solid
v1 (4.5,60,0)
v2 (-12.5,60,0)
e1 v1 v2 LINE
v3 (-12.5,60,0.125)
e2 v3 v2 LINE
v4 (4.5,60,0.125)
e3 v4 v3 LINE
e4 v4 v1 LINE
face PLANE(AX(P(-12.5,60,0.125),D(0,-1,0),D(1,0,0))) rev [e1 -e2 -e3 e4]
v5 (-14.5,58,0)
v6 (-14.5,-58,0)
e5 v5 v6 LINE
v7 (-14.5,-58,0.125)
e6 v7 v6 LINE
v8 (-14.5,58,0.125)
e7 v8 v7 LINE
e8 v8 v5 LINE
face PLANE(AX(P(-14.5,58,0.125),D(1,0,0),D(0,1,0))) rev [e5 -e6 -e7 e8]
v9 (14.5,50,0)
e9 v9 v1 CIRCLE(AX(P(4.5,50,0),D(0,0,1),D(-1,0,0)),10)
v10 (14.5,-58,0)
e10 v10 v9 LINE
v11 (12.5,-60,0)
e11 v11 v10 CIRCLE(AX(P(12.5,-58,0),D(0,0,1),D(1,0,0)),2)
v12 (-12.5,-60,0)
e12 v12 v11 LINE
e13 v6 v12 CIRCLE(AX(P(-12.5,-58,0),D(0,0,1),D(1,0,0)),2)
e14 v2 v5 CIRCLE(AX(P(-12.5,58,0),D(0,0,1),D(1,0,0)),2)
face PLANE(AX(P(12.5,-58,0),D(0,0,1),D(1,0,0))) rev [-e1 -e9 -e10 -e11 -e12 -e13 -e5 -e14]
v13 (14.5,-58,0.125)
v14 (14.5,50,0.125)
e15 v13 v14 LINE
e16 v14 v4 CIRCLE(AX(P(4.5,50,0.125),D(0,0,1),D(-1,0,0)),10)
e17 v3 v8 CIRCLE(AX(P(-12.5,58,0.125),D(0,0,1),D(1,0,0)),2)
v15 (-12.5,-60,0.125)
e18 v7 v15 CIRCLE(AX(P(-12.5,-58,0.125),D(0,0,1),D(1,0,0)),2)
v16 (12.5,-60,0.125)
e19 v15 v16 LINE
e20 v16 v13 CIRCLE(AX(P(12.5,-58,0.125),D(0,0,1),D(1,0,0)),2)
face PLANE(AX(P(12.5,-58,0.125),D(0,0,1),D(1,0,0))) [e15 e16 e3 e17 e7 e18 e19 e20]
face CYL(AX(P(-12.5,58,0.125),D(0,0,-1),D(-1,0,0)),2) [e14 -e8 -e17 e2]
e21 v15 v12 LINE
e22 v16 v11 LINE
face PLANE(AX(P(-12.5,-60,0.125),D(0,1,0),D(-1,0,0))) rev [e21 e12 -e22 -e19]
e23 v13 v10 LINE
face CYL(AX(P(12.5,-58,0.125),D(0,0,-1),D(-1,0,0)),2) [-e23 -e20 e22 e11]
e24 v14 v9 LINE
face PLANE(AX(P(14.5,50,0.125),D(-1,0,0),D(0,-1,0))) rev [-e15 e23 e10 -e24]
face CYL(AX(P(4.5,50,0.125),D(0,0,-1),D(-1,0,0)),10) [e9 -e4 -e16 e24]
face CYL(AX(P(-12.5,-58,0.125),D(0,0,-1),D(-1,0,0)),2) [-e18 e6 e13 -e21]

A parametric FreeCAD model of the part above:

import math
import FreeCAD as App
import Part
import Sketcher
from FreeCAD import Vector

doc = App.newDocument("Part")
body = doc.addObject("PartDesign::Body", "Body")

sketch1 = doc.addObject("Sketcher::SketchObject", "Sketch")
body.addObject(sketch1)
sketch1.AttachmentSupport = (doc.XY_Plane, [""])
sketch1.MapMode = "FlatFace"
sketch1.addGeometry([
    Part.LineSegment(Vector(4.5, 60, 0), Vector(-12.5, 60, 0)),
    Part.ArcOfCircle(Part.Circle(Vector(-12.5, 58, 0), Vector(0, 0, 1), 2), math.radians(90), math.radians(180)),
    Part.LineSegment(Vector(-14.5, 58, 0), Vector(-14.5, -58, 0)),
    Part.ArcOfCircle(Part.Circle(Vector(-12.5, -58, 0), Vector(0, 0, 1), 2), math.radians(-180), math.radians(-90)),
    Part.LineSegment(Vector(-12.5, -60, 0), Vector(12.5, -60, 0)),
    Part.ArcOfCircle(Part.Circle(Vector(12.5, -58, 0), Vector(0, 0, 1), 2), math.radians(-90), math.radians(0)),
    Part.LineSegment(Vector(14.5, -58, 0), Vector(14.5, 50, 0)),
    Part.ArcOfCircle(Part.Circle(Vector(4.5, 50, 0), Vector(0, 0, 1), 10), math.radians(0), math.radians(90)),
], False)
sketch1.addConstraint([
    Sketcher.Constraint("Tangent", 0, 2, 1, 1),
    Sketcher.Constraint("Tangent", 1, 2, 2, 1),
    Sketcher.Constraint("Tangent", 2, 2, 3, 1),
    Sketcher.Constraint("Tangent", 3, 2, 4, 1),
    Sketcher.Constraint("Tangent", 4, 2, 5, 1),
    Sketcher.Constraint("Tangent", 5, 2, 6, 1),
    Sketcher.Constraint("Tangent", 6, 2, 7, 1),
    Sketcher.Constraint("Tangent", 7, 2, 0, 1),
    Sketcher.Constraint("Horizontal", 0),
    Sketcher.Constraint("Vertical", 2),
    Sketcher.Constraint("Horizontal", 4),
    Sketcher.Constraint("Vertical", 6),
    Sketcher.Constraint("Equal", 1, 3),
    Sketcher.Constraint("Equal", 3, 5),
    Sketcher.Constraint("Symmetric", 1, 3, 5, 3, -1, 1),
    Sketcher.Constraint("Radius", 1, 2.0),
    Sketcher.Constraint("Radius", 7, 10.0),
    Sketcher.Constraint("DistanceX", 0, 2, 0, 1, 17.0),
    Sketcher.Constraint("DistanceY", 2, 2, 2, 1, 116.0),
])
pad1 = doc.addObject("PartDesign::Pad", "Pad")
body.addObject(pad1)
pad1.Profile = sketch1
pad1.Length = 0.125

doc.recompute()
